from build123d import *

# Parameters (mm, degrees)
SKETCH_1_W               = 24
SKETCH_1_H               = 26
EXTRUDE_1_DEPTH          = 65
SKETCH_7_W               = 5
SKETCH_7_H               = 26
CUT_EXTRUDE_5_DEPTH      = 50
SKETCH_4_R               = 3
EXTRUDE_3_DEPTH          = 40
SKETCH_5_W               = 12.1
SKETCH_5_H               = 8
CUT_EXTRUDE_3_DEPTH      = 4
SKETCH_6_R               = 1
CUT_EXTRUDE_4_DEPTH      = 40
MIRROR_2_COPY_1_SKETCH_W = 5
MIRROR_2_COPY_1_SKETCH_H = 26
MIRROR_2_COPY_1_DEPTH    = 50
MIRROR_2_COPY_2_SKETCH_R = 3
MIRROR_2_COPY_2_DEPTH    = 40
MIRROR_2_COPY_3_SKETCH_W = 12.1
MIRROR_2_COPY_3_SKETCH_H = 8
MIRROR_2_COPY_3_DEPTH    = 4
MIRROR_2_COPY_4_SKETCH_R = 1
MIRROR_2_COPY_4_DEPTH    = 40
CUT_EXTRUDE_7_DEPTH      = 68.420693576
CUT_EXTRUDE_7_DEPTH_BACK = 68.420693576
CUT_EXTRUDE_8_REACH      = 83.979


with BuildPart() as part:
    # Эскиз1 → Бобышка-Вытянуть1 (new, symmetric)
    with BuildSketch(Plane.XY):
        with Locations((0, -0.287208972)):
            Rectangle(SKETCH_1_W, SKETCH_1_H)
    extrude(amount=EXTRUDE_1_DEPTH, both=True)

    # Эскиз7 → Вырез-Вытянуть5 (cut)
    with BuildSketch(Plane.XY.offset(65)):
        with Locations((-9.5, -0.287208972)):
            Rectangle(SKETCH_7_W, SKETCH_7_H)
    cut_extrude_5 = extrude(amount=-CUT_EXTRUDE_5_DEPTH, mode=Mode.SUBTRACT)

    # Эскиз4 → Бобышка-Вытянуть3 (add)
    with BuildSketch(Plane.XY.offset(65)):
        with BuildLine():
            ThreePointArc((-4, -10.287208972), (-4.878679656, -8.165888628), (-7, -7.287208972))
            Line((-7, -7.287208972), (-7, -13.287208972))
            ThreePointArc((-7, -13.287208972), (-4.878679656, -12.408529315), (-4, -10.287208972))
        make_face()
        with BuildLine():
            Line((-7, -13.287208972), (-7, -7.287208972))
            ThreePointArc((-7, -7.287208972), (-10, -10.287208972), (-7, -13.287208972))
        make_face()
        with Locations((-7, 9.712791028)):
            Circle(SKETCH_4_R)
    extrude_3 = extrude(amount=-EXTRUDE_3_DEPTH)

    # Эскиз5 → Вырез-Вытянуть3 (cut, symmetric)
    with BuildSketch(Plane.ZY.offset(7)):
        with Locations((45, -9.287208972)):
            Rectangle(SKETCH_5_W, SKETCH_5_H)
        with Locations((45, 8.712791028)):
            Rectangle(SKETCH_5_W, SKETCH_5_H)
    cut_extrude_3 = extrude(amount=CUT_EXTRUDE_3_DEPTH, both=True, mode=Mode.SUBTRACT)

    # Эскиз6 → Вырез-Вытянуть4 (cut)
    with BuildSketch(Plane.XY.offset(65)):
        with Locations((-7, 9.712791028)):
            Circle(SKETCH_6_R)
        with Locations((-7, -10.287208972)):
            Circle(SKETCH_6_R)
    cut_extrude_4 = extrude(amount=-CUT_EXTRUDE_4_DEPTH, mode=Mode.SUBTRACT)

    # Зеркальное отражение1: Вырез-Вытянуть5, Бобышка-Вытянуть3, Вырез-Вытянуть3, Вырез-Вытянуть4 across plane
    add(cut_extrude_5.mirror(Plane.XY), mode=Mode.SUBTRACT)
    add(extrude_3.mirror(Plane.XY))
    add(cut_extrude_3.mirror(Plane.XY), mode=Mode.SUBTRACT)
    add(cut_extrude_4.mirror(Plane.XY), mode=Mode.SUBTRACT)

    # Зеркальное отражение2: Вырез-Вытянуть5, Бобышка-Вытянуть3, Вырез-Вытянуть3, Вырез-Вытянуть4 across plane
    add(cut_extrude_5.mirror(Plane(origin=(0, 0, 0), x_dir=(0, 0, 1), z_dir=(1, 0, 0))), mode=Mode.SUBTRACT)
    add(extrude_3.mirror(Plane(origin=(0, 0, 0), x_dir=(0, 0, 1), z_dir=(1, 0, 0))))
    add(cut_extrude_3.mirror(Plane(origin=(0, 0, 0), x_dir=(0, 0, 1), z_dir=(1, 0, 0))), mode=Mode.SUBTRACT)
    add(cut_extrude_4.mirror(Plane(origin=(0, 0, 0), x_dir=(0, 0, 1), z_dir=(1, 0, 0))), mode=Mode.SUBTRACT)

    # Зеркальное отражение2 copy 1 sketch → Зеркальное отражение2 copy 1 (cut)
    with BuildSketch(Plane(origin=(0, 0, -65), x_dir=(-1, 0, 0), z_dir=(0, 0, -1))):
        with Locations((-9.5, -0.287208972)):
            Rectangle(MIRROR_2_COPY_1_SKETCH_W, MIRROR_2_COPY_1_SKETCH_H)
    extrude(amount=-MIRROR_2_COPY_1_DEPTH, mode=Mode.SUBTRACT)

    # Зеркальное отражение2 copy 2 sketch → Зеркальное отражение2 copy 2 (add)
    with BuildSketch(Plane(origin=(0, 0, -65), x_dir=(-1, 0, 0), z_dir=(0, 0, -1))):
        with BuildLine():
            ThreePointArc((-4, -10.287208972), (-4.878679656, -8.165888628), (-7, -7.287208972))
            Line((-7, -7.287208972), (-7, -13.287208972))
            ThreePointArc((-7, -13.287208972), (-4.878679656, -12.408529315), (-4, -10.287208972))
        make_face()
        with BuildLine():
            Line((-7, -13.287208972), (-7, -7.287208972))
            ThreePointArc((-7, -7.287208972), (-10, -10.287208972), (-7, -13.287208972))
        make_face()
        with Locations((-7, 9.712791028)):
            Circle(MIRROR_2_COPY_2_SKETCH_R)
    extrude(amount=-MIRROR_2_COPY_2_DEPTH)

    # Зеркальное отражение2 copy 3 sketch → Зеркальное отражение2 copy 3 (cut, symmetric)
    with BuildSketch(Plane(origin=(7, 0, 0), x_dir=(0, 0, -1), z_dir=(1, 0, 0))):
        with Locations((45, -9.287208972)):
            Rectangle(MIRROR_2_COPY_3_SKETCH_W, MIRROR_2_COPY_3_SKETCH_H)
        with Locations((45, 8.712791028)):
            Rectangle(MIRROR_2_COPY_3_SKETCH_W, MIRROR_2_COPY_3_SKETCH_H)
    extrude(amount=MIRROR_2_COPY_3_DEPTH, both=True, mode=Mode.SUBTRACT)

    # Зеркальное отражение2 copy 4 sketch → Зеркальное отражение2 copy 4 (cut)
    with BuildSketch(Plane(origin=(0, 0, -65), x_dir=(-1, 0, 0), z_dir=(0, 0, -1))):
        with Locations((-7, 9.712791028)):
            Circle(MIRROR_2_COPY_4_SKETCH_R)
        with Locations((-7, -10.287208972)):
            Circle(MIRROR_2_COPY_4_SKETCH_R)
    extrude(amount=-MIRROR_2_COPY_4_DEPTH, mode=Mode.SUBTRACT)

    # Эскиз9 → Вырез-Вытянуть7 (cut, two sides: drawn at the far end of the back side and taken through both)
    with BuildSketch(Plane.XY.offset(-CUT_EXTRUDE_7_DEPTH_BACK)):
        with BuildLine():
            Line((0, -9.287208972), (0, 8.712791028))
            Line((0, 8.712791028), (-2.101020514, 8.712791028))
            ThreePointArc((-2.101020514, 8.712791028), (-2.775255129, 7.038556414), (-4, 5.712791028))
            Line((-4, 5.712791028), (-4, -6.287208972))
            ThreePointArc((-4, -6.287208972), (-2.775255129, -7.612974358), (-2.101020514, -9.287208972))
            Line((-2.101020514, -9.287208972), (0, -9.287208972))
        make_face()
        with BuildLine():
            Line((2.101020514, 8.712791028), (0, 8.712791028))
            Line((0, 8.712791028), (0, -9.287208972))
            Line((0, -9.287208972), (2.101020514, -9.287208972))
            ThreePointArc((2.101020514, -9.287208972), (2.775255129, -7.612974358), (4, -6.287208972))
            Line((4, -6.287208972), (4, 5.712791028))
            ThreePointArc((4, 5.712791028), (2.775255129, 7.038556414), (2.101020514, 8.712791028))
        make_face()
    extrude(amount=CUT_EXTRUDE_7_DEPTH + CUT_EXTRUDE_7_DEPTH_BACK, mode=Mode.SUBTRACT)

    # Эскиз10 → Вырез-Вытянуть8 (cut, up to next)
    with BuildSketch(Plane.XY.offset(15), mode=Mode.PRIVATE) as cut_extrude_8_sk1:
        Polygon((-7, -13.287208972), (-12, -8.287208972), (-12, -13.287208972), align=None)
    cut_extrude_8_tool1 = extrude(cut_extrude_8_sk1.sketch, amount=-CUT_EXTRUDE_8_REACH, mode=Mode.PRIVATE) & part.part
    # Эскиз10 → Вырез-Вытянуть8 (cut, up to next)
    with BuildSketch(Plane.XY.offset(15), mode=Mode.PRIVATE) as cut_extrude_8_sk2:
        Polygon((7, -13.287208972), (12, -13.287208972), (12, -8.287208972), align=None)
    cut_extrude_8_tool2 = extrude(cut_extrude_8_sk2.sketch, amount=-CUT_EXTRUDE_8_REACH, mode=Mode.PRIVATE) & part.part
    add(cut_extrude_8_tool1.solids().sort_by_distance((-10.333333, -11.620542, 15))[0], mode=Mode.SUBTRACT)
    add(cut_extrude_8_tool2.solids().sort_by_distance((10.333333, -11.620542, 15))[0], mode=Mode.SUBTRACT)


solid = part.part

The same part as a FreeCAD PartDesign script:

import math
import FreeCAD as App
import Part
import Sketcher

V = App.Vector
Q = App.Units.Quantity


def add_polygon(sketch, points):
    """Adds a closed chain of lines whose ends are joined by coincident constraints."""
    first, n = sketch.GeometryCount, len(points)
    for a, b in zip(points, points[1:] + points[:1]):
        sketch.addGeometry(Part.LineSegment(App.Vector(*a, 0), App.Vector(*b, 0)), False)
    for i in range(n):
        sketch.addConstraint(Sketcher.Constraint("Coincident", first + i, 2, first + (i + 1) % n, 1))

doc = App.newDocument("Part")
body = doc.addObject("PartDesign::Body", "Body")

# Sketch on XY plane
sketch1 = doc.addObject("Sketcher::SketchObject", "Sketch")
body.addObject(sketch1)
sketch1.AttachmentSupport = (doc.XY_Plane, [""])
sketch1.MapMode = "FlatFace"
add_polygon(sketch1, [(-12, 13), (-12, -13), (12, -13), (12, 13)])  # lines 0-3
sketch1.addConstraint(Sketcher.Constraint("Vertical", 0))
sketch1.addConstraint(Sketcher.Constraint("Horizontal", 1))
sketch1.addConstraint(Sketcher.Constraint("Vertical", 2))
sketch1.addConstraint(Sketcher.Constraint("Horizontal", 3))
sketch1.addConstraint(Sketcher.Constraint("DistanceX", 1, 1, 1, 2, Q("24 mm")))
sketch1.addConstraint(Sketcher.Constraint("DistanceY", 0, 2, 0, 1, Q("26 mm")))
sketch1.addConstraint(Sketcher.Constraint("DistanceX", 0, 2, -1, 1, Q("12 mm")))
sketch1.addConstraint(Sketcher.Constraint("DistanceY", 0, 2, -1, 1, Q("13.287209 mm")))
pad1 = doc.addObject("PartDesign::Pad", "Pad")
body.addObject(pad1)
pad1.Profile = sketch1
pad1.Length = 130
pad1.Midplane = True

# Sketch on XY plane
sketch2 = doc.addObject("Sketcher::SketchObject", "Sketch001")
body.addObject(sketch2)
sketch2.AttachmentSupport = (doc.XY_Plane, [""])
sketch2.MapMode = "FlatFace"
sketch2.AttachmentOffset = App.Placement(V(0, 0, 65), App.Rotation())
add_polygon(sketch2, [(-12, 13), (-12, -13), (-7, -13), (-7, 13)])  # lines 0-3
sketch2.addConstraint(Sketcher.Constraint("Vertical", 0))
sketch2.addConstraint(Sketcher.Constraint("Horizontal", 1))
sketch2.addConstraint(Sketcher.Constraint("Vertical", 2))
sketch2.addConstraint(Sketcher.Constraint("Horizontal", 3))
sketch2.addConstraint(Sketcher.Constraint("DistanceX", 1, 1, 1, 2, Q("5 mm")))
sketch2.addConstraint(Sketcher.Constraint("DistanceY", 0, 2, 0, 1, Q("26 mm")))
sketch2.addConstraint(Sketcher.Constraint("DistanceX", 0, 2, -1, 1, Q("12 mm")))
sketch2.addConstraint(Sketcher.Constraint("DistanceY", 0, 2, -1, 1, Q("13.287209 mm")))
pocket1 = doc.addObject("PartDesign::Pocket", "Pocket")
body.addObject(pocket1)
pocket1.Profile = sketch2
pocket1.Length = 50

# Sketch on XY plane
sketch3 = doc.addObject("Sketcher::SketchObject", "Sketch002")
body.addObject(sketch3)
sketch3.AttachmentSupport = (doc.XY_Plane, [""])
sketch3.MapMode = "FlatFace"
sketch3.AttachmentOffset = App.Placement(V(0, 0, 65), App.Rotation())
sketch3.addGeometry(Part.ArcOfCircle(Part.Circle(V(-7, -10.3, 0), V(0, 0, 1), 3), math.radians(0), math.radians(90)), False)
sketch3.addGeometry(Part.ArcOfCircle(Part.Circle(V(-7, -10.3, 0), V(0, 0, 1), 3), math.radians(90), math.radians(270)), False)
sketch3.addGeometry(Part.ArcOfCircle(Part.Circle(V(-7, -10.3, 0), V(0, 0, 1), 3), math.radians(-90), math.radians(0)), False)
sketch3.addGeometry(Part.Circle(V(-7, 9.7, 0), V(0, 0, 1), 3), False)
sketch3.addConstraint(Sketcher.Constraint("Tangent", 0, 2, 1, 1))
sketch3.addConstraint(Sketcher.Constraint("Tangent", 1, 2, 2, 1))
sketch3.addConstraint(Sketcher.Constraint("Tangent", 2, 2, 0, 1))
sketch3.addConstraint(Sketcher.Constraint("Equal", 2, 3))
sketch3.addConstraint(Sketcher.Constraint("Horizontal", 1, 3, 2, 2))
sketch3.addConstraint(Sketcher.Constraint("Vertical", 2, 3, 3, 3))
sketch3.addConstraint(Sketcher.Constraint("Vertical", 3, 3, 0, 2))
sketch3.addConstraint(Sketcher.Constraint("Vertical", 0, 2, 1, 2))
sketch3.addConstraint(Sketcher.Constraint("Diameter", 3, Q("6 mm")))
sketch3.addConstraint(Sketcher.Constraint("DistanceX", 0, 3, -1, 1, Q("7 mm")))
sketch3.addConstraint(Sketcher.Constraint("DistanceY", 0, 3, 3, 3, Q("20 mm")))
sketch3.addConstraint(Sketcher.Constraint("DistanceY", 0, 3, -1, 1, Q("10.287209 mm")))
pad2 = doc.addObject("PartDesign::Pad", "Pad001")
body.addObject(pad2)
pad2.Profile = sketch3
pad2.Length = 40
pad2.Reversed = True

# Sketch on YZ plane
sketch4 = doc.addObject("Sketcher::SketchObject", "Sketch003")
body.addObject(sketch4)
sketch4.AttachmentSupport = (doc.YZ_Plane, [""])
sketch4.MapMode = "FlatFace"
sketch4.AttachmentOffset = App.Placement(V(0, 0, -7), App.Rotation())
add_polygon(sketch4, [(-5, 39), (-13, 39), (-13, 51), (-5, 51)])  # lines 0-3
add_polygon(sketch4, [(13, 39), (5, 39), (5, 51), (13, 51)])  # lines 4-7
sketch4.addConstraint(Sketcher.Constraint("Horizontal", 0))
sketch4.addConstraint(Sketcher.Constraint("Vertical", 1))
sketch4.addConstraint(Sketcher.Constraint("Horizontal", 2))
sketch4.addConstraint(Sketcher.Constraint("Vertical", 3))
sketch4.addConstraint(Sketcher.Constraint("Horizontal", 4))
sketch4.addConstraint(Sketcher.Constraint("Vertical", 5))
sketch4.addConstraint(Sketcher.Constraint("Horizontal", 6))
sketch4.addConstraint(Sketcher.Constraint("Vertical", 7))
sketch4.addConstraint(Sketcher.Constraint("Horizontal", 3, 2, 4, 2))
sketch4.addConstraint(Sketcher.Constraint("Horizontal", 2, 2, 5, 2))
sketch4.addConstraint(Sketcher.Constraint("Equal", 2, 4))
sketch4.addConstraint(Sketcher.Constraint("DistanceX", 0, 2, 0, 1, Q("8 mm")))
sketch4.addConstraint(Sketcher.Constraint("DistanceY", 1, 1, 1, 2, Q("12.1 mm")))
sketch4.addConstraint(Sketcher.Constraint("DistanceX", 3, 2, 4, 2, Q("10 mm")))
sketch4.addConstraint(Sketcher.Constraint("DistanceY", -1, 1, 0, 2, Q("38.95 mm")))
sketch4.addConstraint(Sketcher.Constraint("DistanceX", 0, 2, -1, 1, Q("13.287209 mm")))
pocket2 = doc.addObject("PartDesign::Pocket", "Pocket001")
body.addObject(pocket2)
pocket2.Profile = sketch4
pocket2.Length = 8
pocket2.Midplane = True

# Sketch on XY plane
sketch5 = doc.addObject("Sketcher::SketchObject", "Sketch004")
body.addObject(sketch5)
sketch5.AttachmentSupport = (doc.XY_Plane, [""])
sketch5.MapMode = "FlatFace"
sketch5.AttachmentOffset = App.Placement(V(0, 0, 65), App.Rotation())
sketch5.addGeometry(Part.Circle(V(-7, 9.7, 0), V(0, 0, 1), 1), False)
sketch5.addGeometry(Part.Circle(V(-7, -10.3, 0), V(0, 0, 1), 1), False)
sketch5.addConstraint(Sketcher.Constraint("Equal", 0, 1))
sketch5.addConstraint(Sketcher.Constraint("Vertical", 0, 3, 1, 3))
sketch5.addConstraint(Sketcher.Constraint("Diameter", 0, Q("2 mm")))
sketch5.addConstraint(Sketcher.Constraint("DistanceX", 0, 3, -1, 1, Q("7 mm")))
sketch5.addConstraint(Sketcher.Constraint("DistanceY", 1, 3, 0, 3, Q("20 mm")))
sketch5.addConstraint(Sketcher.Constraint("DistanceY", -1, 1, 0, 3, Q("9.712791 mm")))
pocket3 = doc.addObject("PartDesign::Pocket", "Pocket002")
body.addObject(pocket3)
pocket3.Profile = sketch5
pocket3.Length = 40
doc.recompute()

mirrored = doc.addObject("PartDesign::Mirrored", "Mirrored")
body.addObject(mirrored)
mirrored.Originals = [pocket1, pad2, pocket2, pocket3]
mirrored.MirrorPlane = (doc.XY_Plane, [""])
body.Tip = mirrored
doc.recompute()

mirrored2 = doc.addObject("PartDesign::Mirrored", "Mirrored001")
body.addObject(mirrored2)
mirrored2.Originals = [pocket1, pad2, pocket2, pocket3]
mirrored2.MirrorPlane = (doc.YZ_Plane, [""])
body.Tip = mirrored2

# Sketch on XY plane
sketch6 = doc.addObject("Sketcher::SketchObject", "Sketch005")
body.addObject(sketch6)
sketch6.AttachmentSupport = (doc.XY_Plane, [""])
sketch6.MapMode = "FlatFace"
sketch6.AttachmentOffset = App.Placement(V(0, 0, -65), App.Rotation())
add_polygon(sketch6, [(12, 13), (12, -13), (7, -13), (7, 13)])  # lines 0-3
sketch6.addConstraint(Sketcher.Constraint("Vertical", 0))
sketch6.addConstraint(Sketcher.Constraint("Horizontal", 1))
sketch6.addConstraint(Sketcher.Constraint("Vertical", 2))
sketch6.addConstraint(Sketcher.Constraint("Horizontal", 3))
sketch6.addConstraint(Sketcher.Constraint("DistanceX", 1, 2, 1, 1, Q("5 mm")))
sketch6.addConstraint(Sketcher.Constraint("DistanceY", 0, 2, 0, 1, Q("26 mm")))
sketch6.addConstraint(Sketcher.Constraint("DistanceX", -1, 1, 0, 2, Q("12 mm")))
sketch6.addConstraint(Sketcher.Constraint("DistanceY", 0, 2, -1, 1, Q("13.287209 mm")))
pocket4 = doc.addObject("PartDesign::Pocket", "Pocket003")
body.addObject(pocket4)
pocket4.Profile = sketch6
pocket4.Length = 50
pocket4.Reversed = True

# Sketch on XY plane
sketch7 = doc.addObject("Sketcher::SketchObject", "Sketch006")
body.addObject(sketch7)
sketch7.AttachmentSupport = (doc.XY_Plane, [""])
sketch7.MapMode = "FlatFace"
sketch7.AttachmentOffset = App.Placement(V(0, 0, -65), App.Rotation())
sketch7.addGeometry(Part.ArcOfCircle(Part.Circle(V(7, -10.3, 0), V(0, 0, 1), 3), math.radians(90), math.radians(180)), False)
sketch7.addGeometry(Part.ArcOfCircle(Part.Circle(V(7, -10.3, 0), V(0, 0, 1), 3), math.radians(-90), math.radians(90)), False)
sketch7.addGeometry(Part.ArcOfCircle(Part.Circle(V(7, -10.3, 0), V(0, 0, 1), 3), math.radians(180), math.radians(270)), False)
sketch7.addGeometry(Part.Circle(V(7, 9.7, 0), V(0, 0, 1), 3), False)
sketch7.addConstraint(Sketcher.Constraint("Tangent", 0, 1, 1, 2))
sketch7.addConstraint(Sketcher.Constraint("Tangent", 1, 1, 2, 2))
sketch7.addConstraint(Sketcher.Constraint("Tangent", 2, 1, 0, 2))
sketch7.addConstraint(Sketcher.Constraint("Equal", 2, 3))
sketch7.addConstraint(Sketcher.Constraint("Horizontal", 1, 3, 2, 1))
sketch7.addConstraint(Sketcher.Constraint("Vertical", 2, 3, 3, 3))
sketch7.addConstraint(Sketcher.Constraint("Vertical", 3, 3, 0, 1))
sketch7.addConstraint(Sketcher.Constraint("Vertical", 0, 1, 1, 1))
sketch7.addConstraint(Sketcher.Constraint("Diameter", 3, Q("6 mm")))
sketch7.addConstraint(Sketcher.Constraint("DistanceX", -1, 1, 0, 3, Q("7 mm")))
sketch7.addConstraint(Sketcher.Constraint("DistanceY", 0, 3, 3, 3, Q("20 mm")))
sketch7.addConstraint(Sketcher.Constraint("DistanceY", 0, 3, -1, 1, Q("10.287209 mm")))
pad3 = doc.addObject("PartDesign::Pad", "Pad002")
body.addObject(pad3)
pad3.Profile = sketch7
pad3.Length = 40

# Sketch on YZ plane
sketch8 = doc.addObject("Sketcher::SketchObject", "Sketch007")
body.addObject(sketch8)
sketch8.AttachmentSupport = (doc.YZ_Plane, [""])
sketch8.MapMode = "FlatFace"
sketch8.AttachmentOffset = App.Placement(V(0, 0, 7), App.Rotation())
add_polygon(sketch8, [(-5, -39), (-13, -39), (-13, -51), (-5, -51)])  # lines 0-3
add_polygon(sketch8, [(13, -39), (5, -39), (5, -51), (13, -51)])  # lines 4-7
sketch8.addConstraint(Sketcher.Constraint("Horizontal", 0))
sketch8.addConstraint(Sketcher.Constraint("Vertical", 1))
sketch8.addConstraint(Sketcher.Constraint("Horizontal", 2))
sketch8.addConstraint(Sketcher.Constraint("Vertical", 3))
sketch8.addConstraint(Sketcher.Constraint("Horizontal", 4))
sketch8.addConstraint(Sketcher.Constraint("Vertical", 5))
sketch8.addConstraint(Sketcher.Constraint("Horizontal", 6))
sketch8.addConstraint(Sketcher.Constraint("Vertical", 7))
sketch8.addConstraint(Sketcher.Constraint("Horizontal", 3, 2, 4, 2))
sketch8.addConstraint(Sketcher.Constraint("Horizontal", 2, 2, 5, 2))
sketch8.addConstraint(Sketcher.Constraint("Equal", 2, 4))
sketch8.addConstraint(Sketcher.Constraint("DistanceX", 0, 2, 0, 1, Q("8 mm")))
sketch8.addConstraint(Sketcher.Constraint("DistanceY", 1, 2, 1, 1, Q("12.1 mm")))
sketch8.addConstraint(Sketcher.Constraint("DistanceX", 3, 2, 4, 2, Q("10 mm")))
sketch8.addConstraint(Sketcher.Constraint("DistanceY", 0, 2, -1, 1, Q("38.95 mm")))
sketch8.addConstraint(Sketcher.Constraint("DistanceX", 0, 2, -1, 1, Q("13.287209 mm")))
pocket5 = doc.addObject("PartDesign::Pocket", "Pocket004")
body.addObject(pocket5)
pocket5.Profile = sketch8
pocket5.Length = 8
pocket5.Midplane = True

# Sketch on XY plane
sketch9 = doc.addObject("Sketcher::SketchObject", "Sketch008")
body.addObject(sketch9)
sketch9.AttachmentSupport = (doc.XY_Plane, [""])
sketch9.MapMode = "FlatFace"
sketch9.AttachmentOffset = App.Placement(V(0, 0, -65), App.Rotation())
sketch9.addGeometry(Part.Circle(V(7, 9.7, 0), V(0, 0, 1), 1), False)
sketch9.addGeometry(Part.Circle(V(7, -10.3, 0), V(0, 0, 1), 1), False)
sketch9.addConstraint(Sketcher.Constraint("Equal", 0, 1))
sketch9.addConstraint(Sketcher.Constraint("Vertical", 0, 3, 1, 3))
sketch9.addConstraint(Sketcher.Constraint("Diameter", 0, Q("2 mm")))
sketch9.addConstraint(Sketcher.Constraint("DistanceX", -1, 1, 0, 3, Q("7 mm")))
sketch9.addConstraint(Sketcher.Constraint("DistanceY", 1, 3, 0, 3, Q("20 mm")))
sketch9.addConstraint(Sketcher.Constraint("DistanceY", -1, 1, 0, 3, Q("9.712791 mm")))
pocket6 = doc.addObject("PartDesign::Pocket", "Pocket005")
body.addObject(pocket6)
pocket6.Profile = sketch9
pocket6.Length = 40
pocket6.Reversed = True

# Sketch on XY plane
sketch10 = doc.addObject("Sketcher::SketchObject", "Sketch009")
body.addObject(sketch10)
sketch10.AttachmentSupport = (doc.XY_Plane, [""])
sketch10.MapMode = "FlatFace"
sketch10.addGeometry(Part.ArcOfCircle(Part.Circle(V(-7, 9.7, 0), V(0, 0, 1), 5), math.radians(-53), math.radians(-12)), False)
sketch10.addGeometry(Part.LineSegment(V(-4, 5.7, 0), V(-4, -6.3, 0)), False)
sketch10.addGeometry(Part.ArcOfCircle(Part.Circle(V(-7, -10.3, 0), V(0, 0, 1), 5), math.radians(12), math.radians(53)), False)
sketch10.addGeometry(Part.LineSegment(V(-2.1, -9.3, 0), V(2.1, -9.3, 0)), False)
sketch10.addGeometry(Part.ArcOfCircle(Part.Circle(V(7, -10.3, 0), V(0, 0, 1), 5), math.radians(127), math.radians(168)), False)
sketch10.addGeometry(Part.LineSegment(V(4, -6.3, 0), V(4, 5.7, 0)), False)
sketch10.addGeometry(Part.ArcOfCircle(Part.Circle(V(7, 9.7, 0), V(0, 0, 1), 5), math.radians(-168), math.radians(-127)), False)
sketch10.addGeometry(Part.LineSegment(V(2.1, 8.7, 0), V(-2.1, 8.7, 0)), False)
sketch10.addConstraint(Sketcher.Constraint("Coincident", 0, 1, 1, 1))
sketch10.addConstraint(Sketcher.Constraint("Coincident", 1, 2, 2, 2))
sketch10.addConstraint(Sketcher.Constraint("Coincident", 2, 1, 3, 1))
sketch10.addConstraint(Sketcher.Constraint("Coincident", 3, 2, 4, 2))
sketch10.addConstraint(Sketcher.Constraint("Coincident", 4, 1, 5, 1))
sketch10.addConstraint(Sketcher.Constraint("Coincident", 5, 2, 6, 2))
sketch10.addConstraint(Sketcher.Constraint("Coincident", 6, 1, 7, 1))
sketch10.addConstraint(Sketcher.Constraint("Coincident", 7, 2, 0, 2))
sketch10.addConstraint(Sketcher.Constraint("Vertical", 1))
sketch10.addConstraint(Sketcher.Constraint("Horizontal", 3))
sketch10.addConstraint(Sketcher.Constraint("Vertical", 5))
sketch10.addConstraint(Sketcher.Constraint("Horizontal", 7))
sketch10.addConstraint(Sketcher.Constraint("Equal", 0, 2))
sketch10.addConstraint(Sketcher.Constraint("Equal", 2, 4))
sketch10.addConstraint(Sketcher.Constraint("Equal", 4, 6))
sketch10.addConstraint(Sketcher.Constraint("Symmetric", 2, 3, 4, 3, -2))
sketch10.addConstraint(Sketcher.Constraint("Symmetric", 0, 3, 6, 3, -2))
sketch10.addConstraint(Sketcher.Constraint("Horizontal", 1, 2, 4, 1))
sketch10.addConstraint(Sketcher.Constraint("Vertical", 0, 3, 2, 3))
sketch10.addConstraint(Sketcher.Constraint("Vertical", 3, 2, 6, 1))
sketch10.addConstraint(Sketcher.Constraint("Radius", 0, Q("5 mm")))
sketch10.addConstraint(Sketcher.Constraint("DistanceY", 1, 2, 1, 1, Q("12 mm")))
sketch10.addConstraint(Sketcher.Constraint("DistanceX", 0, 3, -1, 1, Q("7 mm")))
sketch10.addConstraint(Sketcher.Constraint("DistanceX", 0, 1, -1, 1, Q("4 mm")))
sketch10.addConstraint(Sketcher.Constraint("DistanceY", 2, 1, 1, 2, Q("3 mm")))
sketch10.addConstraint(Sketcher.Constraint("DistanceY", -1, 1, 0, 3, Q("9.712791 mm")))
pocket7 = doc.addObject("PartDesign::Pocket", "Pocket006")
body.addObject(pocket7)
pocket7.Profile = sketch10
pocket7.Type = "ThroughAll"
pocket7.Midplane = True

# Sketch on XY plane
sketch11 = doc.addObject("Sketcher::SketchObject", "Sketch010")
body.addObject(sketch11)
sketch11.AttachmentSupport = (doc.XY_Plane, [""])
sketch11.MapMode = "FlatFace"
sketch11.AttachmentOffset = App.Placement(V(0, 0, 15), App.Rotation())
add_polygon(sketch11, [(-7, -13), (-12, -8), (-12, -13)])  # lines 0-2
sketch11.addConstraint(Sketcher.Constraint("Vertical", 1))
sketch11.addConstraint(Sketcher.Constraint("Horizontal", 2))
sketch11.addConstraint(Sketcher.Constraint("Equal", 2, 1))
sketch11.addConstraint(Sketcher.Constraint("DistanceX", 2, 1, 2, 2, Q("5 mm")))
sketch11.addConstraint(Sketcher.Constraint("DistanceX", 0, 2, -1, 1, Q("12 mm")))
sketch11.addConstraint(Sketcher.Constraint("DistanceY", 0, 2, -1, 1, Q("8.287209 mm")))
pocket8 = doc.addObject("PartDesign::Pocket", "Pocket007")
body.addObject(pocket8)
pocket8.Profile = sketch11
pocket8.Type = "UpToFirst"

# Sketch on XY plane
sketch12 = doc.addObject("Sketcher::SketchObject", "Sketch011")
body.addObject(sketch12)
sketch12.AttachmentSupport = (doc.XY_Plane, [""])
sketch12.MapMode = "FlatFace"
sketch12.AttachmentOffset = App.Placement(V(0, 0, 15), App.Rotation())
add_polygon(sketch12, [(7, -13), (12, -13), (12, -8)])  # lines 0-2
sketch12.addConstraint(Sketcher.Constraint("Horizontal", 0))
sketch12.addConstraint(Sketcher.Constraint("Vertical", 1))
sketch12.addConstraint(Sketcher.Constraint("Equal", 0, 1))
sketch12.addConstraint(Sketcher.Constraint("DistanceX", 0, 1, 0, 2, Q("5 mm")))
sketch12.addConstraint(Sketcher.Constraint("DistanceX", -1, 1, 0, 2, Q("12 mm")))
sketch12.addConstraint(Sketcher.Constraint("DistanceY", 0, 2, -1, 1, Q("13.287209 mm")))
pocket9 = doc.addObject("PartDesign::Pocket", "Pocket008")
body.addObject(pocket9)
pocket9.Profile = sketch12
pocket9.Type = "UpToFirst"

doc.recompute()
